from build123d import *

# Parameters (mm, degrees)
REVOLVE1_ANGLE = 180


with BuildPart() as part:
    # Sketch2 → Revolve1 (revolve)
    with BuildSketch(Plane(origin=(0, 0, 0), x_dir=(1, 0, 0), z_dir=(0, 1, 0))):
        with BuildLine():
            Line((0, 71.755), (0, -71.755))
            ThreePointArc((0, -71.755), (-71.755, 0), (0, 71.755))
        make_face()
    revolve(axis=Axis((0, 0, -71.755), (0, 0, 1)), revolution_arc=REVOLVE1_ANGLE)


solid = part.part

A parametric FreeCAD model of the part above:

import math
import FreeCAD as App
import Part
import Sketcher

V = App.Vector
Q = App.Units.Quantity

doc = App.newDocument("Part")
body = doc.addObject("PartDesign::Body", "Body")

sketch1 = body.newObject("Sketcher::SketchObject", "Sketch")
sketch1.AttachmentSupport = (doc.getObject("XZ_Plane"), [""])
sketch1.MapMode = "FlatFace"
sketch1.addGeometry([
    Part.LineSegment(V(0, 72, 0), V(0, -72, 0)),
    Part.ArcOfCircle(Part.Circle(V(0, 0, 0), V(0, 0, 1), 72), math.radians(90), math.radians(270)),
], False)
sketch1.addConstraint([
    Sketcher.Constraint("Coincident", 0, 1, 1, 1),
    Sketcher.Constraint("Coincident", 1, 2, 0, 2),
    Sketcher.Constraint("Vertical", 0),
    Sketcher.Constraint("Coincident", 1, 3, -1, 1),
    Sketcher.Constraint("PointOnObject", 0, 1, -2),
    Sketcher.Constraint("Radius", 1, Q("2.825 in")),
])
revolution = body.newObject("PartDesign::Revolution", "Revolution")
revolution.Profile = sketch1
revolution.ReferenceAxis = (sketch1, ["V_Axis"])
revolution.Angle = 180

doc.recompute()
